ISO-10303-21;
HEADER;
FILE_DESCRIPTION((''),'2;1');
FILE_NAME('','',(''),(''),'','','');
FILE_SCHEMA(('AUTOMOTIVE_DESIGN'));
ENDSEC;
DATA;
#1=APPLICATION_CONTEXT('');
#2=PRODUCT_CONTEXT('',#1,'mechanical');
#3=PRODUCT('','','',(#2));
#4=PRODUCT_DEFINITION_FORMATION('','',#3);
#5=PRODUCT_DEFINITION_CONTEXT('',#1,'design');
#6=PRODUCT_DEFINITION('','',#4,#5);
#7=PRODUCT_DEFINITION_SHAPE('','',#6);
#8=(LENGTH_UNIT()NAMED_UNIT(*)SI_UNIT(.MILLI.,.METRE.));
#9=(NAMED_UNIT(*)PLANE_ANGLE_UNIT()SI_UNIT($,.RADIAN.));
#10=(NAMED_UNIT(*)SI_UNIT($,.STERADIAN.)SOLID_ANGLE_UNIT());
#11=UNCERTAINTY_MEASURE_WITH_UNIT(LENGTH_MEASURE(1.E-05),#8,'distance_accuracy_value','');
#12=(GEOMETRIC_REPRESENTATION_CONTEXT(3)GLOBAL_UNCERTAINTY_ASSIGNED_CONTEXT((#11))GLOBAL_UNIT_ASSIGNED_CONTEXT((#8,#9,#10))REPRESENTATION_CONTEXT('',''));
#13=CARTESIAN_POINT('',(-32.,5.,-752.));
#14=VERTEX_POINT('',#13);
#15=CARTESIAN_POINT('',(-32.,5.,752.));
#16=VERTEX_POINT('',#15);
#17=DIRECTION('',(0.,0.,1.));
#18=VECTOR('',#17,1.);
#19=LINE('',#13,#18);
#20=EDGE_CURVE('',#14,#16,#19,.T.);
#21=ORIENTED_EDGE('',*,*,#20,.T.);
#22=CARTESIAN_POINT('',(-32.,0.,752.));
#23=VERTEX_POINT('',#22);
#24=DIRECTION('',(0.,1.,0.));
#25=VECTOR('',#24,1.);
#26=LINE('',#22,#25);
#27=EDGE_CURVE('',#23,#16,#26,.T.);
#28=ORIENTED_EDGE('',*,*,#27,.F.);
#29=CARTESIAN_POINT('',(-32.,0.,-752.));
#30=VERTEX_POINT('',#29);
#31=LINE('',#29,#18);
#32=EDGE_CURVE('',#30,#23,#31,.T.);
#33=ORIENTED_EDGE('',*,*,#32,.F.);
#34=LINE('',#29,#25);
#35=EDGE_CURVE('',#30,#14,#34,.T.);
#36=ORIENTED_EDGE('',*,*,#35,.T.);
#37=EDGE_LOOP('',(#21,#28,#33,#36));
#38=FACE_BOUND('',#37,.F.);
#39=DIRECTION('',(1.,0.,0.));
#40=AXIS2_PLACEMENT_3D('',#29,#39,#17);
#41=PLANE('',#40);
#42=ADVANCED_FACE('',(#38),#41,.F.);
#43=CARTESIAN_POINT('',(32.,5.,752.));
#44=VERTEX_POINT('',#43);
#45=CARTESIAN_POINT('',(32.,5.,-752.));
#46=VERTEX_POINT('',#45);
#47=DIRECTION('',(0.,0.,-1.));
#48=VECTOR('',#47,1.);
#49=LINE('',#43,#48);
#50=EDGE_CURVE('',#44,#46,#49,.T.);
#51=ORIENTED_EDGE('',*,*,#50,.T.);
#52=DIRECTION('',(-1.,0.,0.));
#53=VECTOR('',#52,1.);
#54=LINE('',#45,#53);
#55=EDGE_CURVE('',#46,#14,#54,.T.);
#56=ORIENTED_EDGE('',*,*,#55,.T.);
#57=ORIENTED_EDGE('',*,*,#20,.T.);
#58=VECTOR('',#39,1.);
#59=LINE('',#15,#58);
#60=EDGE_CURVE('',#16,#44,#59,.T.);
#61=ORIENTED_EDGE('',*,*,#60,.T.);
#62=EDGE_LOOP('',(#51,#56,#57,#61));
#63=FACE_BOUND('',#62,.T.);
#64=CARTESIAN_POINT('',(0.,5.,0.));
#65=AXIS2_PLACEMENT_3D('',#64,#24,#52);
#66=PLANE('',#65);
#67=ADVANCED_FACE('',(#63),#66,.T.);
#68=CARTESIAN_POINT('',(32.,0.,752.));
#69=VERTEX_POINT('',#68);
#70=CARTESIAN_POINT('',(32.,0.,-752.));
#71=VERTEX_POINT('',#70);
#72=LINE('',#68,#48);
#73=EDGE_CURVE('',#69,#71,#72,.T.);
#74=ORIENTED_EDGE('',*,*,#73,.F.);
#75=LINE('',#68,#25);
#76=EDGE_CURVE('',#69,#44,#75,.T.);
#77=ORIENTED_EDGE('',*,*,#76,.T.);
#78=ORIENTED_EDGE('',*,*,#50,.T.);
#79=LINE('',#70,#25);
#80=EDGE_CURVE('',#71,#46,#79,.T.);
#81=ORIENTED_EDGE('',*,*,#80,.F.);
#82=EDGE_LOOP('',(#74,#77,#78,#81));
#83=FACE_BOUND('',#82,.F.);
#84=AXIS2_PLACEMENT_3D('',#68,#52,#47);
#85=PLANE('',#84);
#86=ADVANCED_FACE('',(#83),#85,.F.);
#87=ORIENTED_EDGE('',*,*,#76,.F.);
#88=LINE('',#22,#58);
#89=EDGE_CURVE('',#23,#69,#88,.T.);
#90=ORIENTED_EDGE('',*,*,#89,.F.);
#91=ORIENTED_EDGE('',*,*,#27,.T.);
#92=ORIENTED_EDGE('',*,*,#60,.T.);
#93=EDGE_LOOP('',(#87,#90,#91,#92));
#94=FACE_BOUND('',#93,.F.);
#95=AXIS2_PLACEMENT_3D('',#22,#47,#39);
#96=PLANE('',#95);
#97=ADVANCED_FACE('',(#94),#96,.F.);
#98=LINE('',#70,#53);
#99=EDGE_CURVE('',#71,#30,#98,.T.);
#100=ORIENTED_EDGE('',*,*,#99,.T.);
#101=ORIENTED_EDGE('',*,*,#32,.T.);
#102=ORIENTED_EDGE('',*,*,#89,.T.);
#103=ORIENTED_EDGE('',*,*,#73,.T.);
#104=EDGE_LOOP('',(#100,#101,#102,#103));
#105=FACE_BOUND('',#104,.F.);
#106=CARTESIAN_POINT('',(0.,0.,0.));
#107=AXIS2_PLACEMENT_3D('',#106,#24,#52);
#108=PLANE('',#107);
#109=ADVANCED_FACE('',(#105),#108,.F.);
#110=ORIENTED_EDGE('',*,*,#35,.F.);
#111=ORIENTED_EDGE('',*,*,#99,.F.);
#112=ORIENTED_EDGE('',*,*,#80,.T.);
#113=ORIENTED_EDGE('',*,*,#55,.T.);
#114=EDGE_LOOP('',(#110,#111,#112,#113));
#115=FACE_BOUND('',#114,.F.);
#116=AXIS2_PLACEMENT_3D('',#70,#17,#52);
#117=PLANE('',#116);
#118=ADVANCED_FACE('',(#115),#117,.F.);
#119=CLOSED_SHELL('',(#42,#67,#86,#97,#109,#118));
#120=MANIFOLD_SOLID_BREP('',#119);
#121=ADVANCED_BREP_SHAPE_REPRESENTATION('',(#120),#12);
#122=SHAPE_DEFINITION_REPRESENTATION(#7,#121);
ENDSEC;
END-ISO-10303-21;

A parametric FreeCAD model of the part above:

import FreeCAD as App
import Part
import Sketcher

V = App.Vector


def add_polygon(sketch, points):
    """Adds a closed chain of lines whose ends are joined by coincident constraints."""
    first, n = sketch.GeometryCount, len(points)
    for a, b in zip(points, points[1:] + points[:1]):
        sketch.addGeometry(Part.LineSegment(App.Vector(*a, 0), App.Vector(*b, 0)), False)
    for i in range(n):
        sketch.addConstraint(Sketcher.Constraint("Coincident", first + i, 2, first + (i + 1) % n, 1))

doc = App.newDocument("Part")
params = doc.addObject("Spreadsheet::Sheet", "Params")
for row, (alias, value) in enumerate([
    ("sketch1_width", "64 mm"),
    ("sketch1_height", "1504 mm"),
    ("pad1_length", "5 mm"),
], start=1):
    params.set(f"A{row}", alias)
    params.set(f"B{row}", "=" + value)
    params.setAlias(f"B{row}", alias)

body = doc.addObject("PartDesign::Body", "Body")

# Sketch on XZ plane
sketch1 = body.newObject("Sketcher::SketchObject", "Sketch")
sketch1.AttachmentSupport = (doc.getObject("XZ_Plane"), [""])
sketch1.MapMode = "FlatFace"
add_polygon(sketch1, [(-32, -752), (-32, 752), (32, 752), (32, -752)])  # lines 0-3
sketch1.addConstraint([
    Sketcher.Constraint("Vertical", 0),
    Sketcher.Constraint("Horizontal", 1),
    Sketcher.Constraint("Vertical", 2),
    Sketcher.Constraint("Horizontal", 3),
    Sketcher.Constraint("Symmetric", 0, 2, 2, 2, -1, 1),
    Sketcher.Constraint("DistanceX", 1, 1, 1, 2, 64.0),
    Sketcher.Constraint("DistanceY", 0, 1, 0, 2, 1504.0),
])
sketch1.setExpression("Constraints[9]", "Params.sketch1_width")
sketch1.setExpression("Constraints[10]", "Params.sketch1_height")
pad1 = body.newObject("PartDesign::Pad", "Pad")
pad1.Profile = sketch1
pad1.setExpression("Length", "Params.pad1_length")
pad1.Reversed = True

doc.recompute()
